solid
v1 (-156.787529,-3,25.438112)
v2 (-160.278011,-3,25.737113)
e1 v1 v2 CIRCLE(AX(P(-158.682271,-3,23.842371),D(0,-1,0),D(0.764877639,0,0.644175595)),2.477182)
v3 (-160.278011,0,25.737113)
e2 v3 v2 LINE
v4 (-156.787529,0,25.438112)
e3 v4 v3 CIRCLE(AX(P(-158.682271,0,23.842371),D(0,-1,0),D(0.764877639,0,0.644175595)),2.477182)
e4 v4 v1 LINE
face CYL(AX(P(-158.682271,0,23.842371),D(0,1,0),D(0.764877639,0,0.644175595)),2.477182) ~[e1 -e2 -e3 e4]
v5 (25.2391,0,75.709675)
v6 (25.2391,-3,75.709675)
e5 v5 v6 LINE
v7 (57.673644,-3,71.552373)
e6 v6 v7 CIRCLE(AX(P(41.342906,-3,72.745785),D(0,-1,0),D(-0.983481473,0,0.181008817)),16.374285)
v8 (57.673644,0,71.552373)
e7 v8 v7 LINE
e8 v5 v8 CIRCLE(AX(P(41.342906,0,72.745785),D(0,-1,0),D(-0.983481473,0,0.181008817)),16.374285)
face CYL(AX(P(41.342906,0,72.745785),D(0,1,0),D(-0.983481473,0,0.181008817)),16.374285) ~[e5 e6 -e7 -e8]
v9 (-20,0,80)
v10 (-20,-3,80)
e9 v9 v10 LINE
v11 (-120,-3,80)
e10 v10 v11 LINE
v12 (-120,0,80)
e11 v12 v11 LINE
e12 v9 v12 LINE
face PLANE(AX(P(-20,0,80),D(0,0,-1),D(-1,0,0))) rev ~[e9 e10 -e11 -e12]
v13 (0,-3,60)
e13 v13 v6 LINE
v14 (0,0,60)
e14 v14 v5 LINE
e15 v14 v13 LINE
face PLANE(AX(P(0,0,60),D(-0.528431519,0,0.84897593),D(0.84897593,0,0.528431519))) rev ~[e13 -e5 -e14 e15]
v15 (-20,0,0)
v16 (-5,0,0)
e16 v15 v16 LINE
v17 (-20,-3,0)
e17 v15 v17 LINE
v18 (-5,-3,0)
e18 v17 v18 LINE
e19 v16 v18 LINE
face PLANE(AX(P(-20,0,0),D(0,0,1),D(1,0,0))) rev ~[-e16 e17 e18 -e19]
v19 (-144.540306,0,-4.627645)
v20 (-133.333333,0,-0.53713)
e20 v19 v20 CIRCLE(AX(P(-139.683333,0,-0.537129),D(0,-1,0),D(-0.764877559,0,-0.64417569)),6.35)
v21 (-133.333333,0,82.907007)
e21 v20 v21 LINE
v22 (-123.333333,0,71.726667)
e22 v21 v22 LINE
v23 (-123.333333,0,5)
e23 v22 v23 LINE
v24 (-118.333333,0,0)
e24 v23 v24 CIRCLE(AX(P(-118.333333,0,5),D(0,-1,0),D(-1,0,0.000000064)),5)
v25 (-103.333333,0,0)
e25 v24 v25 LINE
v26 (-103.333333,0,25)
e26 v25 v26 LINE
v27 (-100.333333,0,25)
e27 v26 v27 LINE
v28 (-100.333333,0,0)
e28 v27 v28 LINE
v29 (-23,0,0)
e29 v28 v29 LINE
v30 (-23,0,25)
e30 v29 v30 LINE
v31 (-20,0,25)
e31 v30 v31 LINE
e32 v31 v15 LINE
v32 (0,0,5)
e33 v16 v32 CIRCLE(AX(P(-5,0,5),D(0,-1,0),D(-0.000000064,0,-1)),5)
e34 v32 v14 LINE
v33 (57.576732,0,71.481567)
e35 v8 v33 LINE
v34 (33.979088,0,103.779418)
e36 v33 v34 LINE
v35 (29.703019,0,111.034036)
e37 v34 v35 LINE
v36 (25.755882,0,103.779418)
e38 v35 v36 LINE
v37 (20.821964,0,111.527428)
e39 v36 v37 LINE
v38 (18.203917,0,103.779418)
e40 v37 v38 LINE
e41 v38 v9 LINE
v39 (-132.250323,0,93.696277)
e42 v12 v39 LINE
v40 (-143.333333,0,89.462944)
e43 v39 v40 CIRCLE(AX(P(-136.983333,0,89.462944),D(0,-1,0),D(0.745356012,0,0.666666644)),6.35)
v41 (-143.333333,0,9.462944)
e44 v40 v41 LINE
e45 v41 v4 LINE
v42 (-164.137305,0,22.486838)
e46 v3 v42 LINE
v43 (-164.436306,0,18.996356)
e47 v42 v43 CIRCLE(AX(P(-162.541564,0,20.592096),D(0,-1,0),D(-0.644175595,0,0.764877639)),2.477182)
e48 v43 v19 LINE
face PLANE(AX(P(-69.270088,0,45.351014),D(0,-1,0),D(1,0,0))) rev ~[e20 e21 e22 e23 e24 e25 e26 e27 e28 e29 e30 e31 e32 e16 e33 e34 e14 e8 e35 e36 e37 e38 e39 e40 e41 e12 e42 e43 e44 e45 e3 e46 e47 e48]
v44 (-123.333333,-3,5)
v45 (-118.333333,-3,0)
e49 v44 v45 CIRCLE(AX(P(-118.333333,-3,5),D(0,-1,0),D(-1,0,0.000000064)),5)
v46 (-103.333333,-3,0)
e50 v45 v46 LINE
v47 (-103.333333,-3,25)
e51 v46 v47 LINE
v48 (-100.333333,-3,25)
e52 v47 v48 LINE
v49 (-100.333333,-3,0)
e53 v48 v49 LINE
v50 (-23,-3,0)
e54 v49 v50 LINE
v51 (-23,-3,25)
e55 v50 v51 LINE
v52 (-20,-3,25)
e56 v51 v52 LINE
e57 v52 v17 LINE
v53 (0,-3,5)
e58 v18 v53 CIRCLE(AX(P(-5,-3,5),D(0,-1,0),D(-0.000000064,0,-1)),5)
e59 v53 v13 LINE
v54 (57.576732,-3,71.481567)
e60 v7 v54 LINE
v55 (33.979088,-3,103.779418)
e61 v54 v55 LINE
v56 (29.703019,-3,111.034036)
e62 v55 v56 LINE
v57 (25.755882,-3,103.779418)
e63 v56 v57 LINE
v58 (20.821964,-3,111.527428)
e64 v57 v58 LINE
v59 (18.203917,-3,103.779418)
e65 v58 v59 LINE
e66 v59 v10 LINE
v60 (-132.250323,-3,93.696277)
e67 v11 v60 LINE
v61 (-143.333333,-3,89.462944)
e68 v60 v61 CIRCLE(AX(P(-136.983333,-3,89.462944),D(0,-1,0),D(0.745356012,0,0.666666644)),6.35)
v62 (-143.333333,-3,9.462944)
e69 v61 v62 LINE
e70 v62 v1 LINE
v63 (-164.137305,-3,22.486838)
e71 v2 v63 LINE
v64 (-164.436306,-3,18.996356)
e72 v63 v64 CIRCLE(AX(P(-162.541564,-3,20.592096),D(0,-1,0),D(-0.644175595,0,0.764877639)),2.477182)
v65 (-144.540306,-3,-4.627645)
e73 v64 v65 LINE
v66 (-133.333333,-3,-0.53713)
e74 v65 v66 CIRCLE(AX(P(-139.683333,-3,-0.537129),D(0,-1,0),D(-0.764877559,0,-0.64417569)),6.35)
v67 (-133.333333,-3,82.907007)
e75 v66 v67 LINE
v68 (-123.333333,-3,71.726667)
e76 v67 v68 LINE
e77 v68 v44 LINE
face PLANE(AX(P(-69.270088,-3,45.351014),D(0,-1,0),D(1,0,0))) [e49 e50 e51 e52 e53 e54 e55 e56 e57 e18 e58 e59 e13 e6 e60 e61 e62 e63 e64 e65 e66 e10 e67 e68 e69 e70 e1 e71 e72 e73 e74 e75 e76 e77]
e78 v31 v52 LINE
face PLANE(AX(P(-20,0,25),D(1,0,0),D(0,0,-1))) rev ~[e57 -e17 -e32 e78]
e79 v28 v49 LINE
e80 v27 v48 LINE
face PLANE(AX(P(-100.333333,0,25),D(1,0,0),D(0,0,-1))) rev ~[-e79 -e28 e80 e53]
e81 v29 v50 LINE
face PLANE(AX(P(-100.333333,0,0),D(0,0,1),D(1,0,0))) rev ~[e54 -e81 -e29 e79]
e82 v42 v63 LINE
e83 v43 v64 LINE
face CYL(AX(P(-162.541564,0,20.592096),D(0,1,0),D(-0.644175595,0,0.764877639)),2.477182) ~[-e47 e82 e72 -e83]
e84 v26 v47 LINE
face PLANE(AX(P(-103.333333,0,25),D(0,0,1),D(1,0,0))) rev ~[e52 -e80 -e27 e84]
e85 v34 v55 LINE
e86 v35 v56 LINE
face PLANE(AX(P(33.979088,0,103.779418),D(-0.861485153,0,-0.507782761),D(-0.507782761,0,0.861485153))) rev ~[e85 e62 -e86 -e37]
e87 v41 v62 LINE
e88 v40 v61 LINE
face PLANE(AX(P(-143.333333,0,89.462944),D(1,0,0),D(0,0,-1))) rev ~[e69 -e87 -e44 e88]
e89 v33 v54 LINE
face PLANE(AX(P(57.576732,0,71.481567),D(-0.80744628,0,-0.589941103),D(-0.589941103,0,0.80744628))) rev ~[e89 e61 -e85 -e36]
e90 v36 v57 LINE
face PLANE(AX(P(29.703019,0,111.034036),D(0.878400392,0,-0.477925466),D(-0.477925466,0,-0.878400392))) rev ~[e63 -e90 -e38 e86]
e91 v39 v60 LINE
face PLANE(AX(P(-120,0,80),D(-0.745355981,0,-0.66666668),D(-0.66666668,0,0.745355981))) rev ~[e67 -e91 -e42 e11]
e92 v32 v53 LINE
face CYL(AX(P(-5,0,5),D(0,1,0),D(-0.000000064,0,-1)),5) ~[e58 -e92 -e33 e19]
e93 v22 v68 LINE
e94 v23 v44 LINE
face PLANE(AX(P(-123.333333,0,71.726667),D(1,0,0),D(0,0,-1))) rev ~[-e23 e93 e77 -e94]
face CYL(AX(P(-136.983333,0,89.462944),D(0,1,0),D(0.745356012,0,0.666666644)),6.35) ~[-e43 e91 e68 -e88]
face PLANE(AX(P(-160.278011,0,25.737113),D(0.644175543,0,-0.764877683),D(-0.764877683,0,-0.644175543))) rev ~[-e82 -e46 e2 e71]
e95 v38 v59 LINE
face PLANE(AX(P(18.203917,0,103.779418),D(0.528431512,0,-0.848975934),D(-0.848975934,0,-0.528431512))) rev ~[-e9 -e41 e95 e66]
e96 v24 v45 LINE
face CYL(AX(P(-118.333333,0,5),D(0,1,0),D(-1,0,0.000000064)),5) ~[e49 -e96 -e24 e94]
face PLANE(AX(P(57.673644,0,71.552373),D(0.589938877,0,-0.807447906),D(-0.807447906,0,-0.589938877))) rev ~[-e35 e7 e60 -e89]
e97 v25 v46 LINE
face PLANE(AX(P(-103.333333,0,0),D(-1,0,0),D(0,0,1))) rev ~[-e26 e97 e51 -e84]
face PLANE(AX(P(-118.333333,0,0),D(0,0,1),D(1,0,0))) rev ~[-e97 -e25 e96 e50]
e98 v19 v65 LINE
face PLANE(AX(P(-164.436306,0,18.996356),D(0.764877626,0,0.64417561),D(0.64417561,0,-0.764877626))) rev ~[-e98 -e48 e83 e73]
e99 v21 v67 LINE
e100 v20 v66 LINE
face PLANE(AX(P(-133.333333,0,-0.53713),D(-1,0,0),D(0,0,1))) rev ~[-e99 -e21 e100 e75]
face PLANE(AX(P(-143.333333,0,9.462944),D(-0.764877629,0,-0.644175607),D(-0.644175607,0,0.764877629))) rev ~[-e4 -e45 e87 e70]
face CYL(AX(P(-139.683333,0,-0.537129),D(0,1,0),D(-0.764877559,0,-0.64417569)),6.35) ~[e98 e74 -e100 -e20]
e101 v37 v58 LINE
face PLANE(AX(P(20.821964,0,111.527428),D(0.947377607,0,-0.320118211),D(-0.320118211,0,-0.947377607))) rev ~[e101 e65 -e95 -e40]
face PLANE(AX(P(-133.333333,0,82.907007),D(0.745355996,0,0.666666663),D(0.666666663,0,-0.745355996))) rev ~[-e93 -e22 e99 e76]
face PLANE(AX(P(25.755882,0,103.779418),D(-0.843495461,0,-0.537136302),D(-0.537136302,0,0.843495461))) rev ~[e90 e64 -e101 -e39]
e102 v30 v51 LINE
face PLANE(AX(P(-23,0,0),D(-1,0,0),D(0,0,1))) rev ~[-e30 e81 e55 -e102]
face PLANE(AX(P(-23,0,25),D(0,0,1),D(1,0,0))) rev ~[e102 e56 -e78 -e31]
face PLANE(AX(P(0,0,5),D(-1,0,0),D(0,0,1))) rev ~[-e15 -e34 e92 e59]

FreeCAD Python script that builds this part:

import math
import FreeCAD as App
import Part
import Sketcher
from FreeCAD import Vector
Q = App.Units.Quantity

doc = App.newDocument("Part")
params = doc.addObject("Spreadsheet::Sheet", "Params")
for row, (alias, value) in enumerate([
    ("sketch1_radius", "5 mm"),
    ("sketch1_width", "15 mm"),
    ("sketch1_width2", "100 mm"),
    ("sketch1_width3", "3 mm"),
    ("sketch1_height", "55 mm"),
    ("pad1_length", "3 mm"),
], start=1):
    params.set(f"A{row}", alias)
    params.set(f"B{row}", "=" + value)
    params.setAlias(f"B{row}", alias)

body = doc.addObject("PartDesign::Body", "Body")

# Sketch on XZ plane
sketch1 = doc.addObject("Sketcher::SketchObject", "Sketch")
body.addObject(sketch1)
sketch1.AttachmentSupport = (doc.XZ_Plane, [""])
sketch1.MapMode = "FlatFace"
sketch1.addGeometry([
    Part.LineSegment(Vector(-20, 0, 0), Vector(-5, 0, 0)),  # 0
    Part.ArcOfCircle(Part.Circle(Vector(-5, 5, 0), Vector(0, 0, 1), 5), math.radians(-90.000004), math.radians(0.000004)),  # 1
    Part.LineSegment(Vector(0, 5, 0), Vector(0, 60, 0)),  # 2
    Part.LineSegment(Vector(0, 60, 0), Vector(25.2391, 75.709675, 0)),  # 3
    Part.ArcOfCircle(Part.Circle(Vector(41.342906, 72.745785, 0), Vector(0, 0, 1), 16.374285), math.radians(169.571474), math.radians(355.820389)),  # 4
    Part.LineSegment(Vector(57.673644, 71.552373, 0), Vector(57.576732, 71.481567, 0)),  # 5
    Part.LineSegment(Vector(57.576732, 71.481567, 0), Vector(33.979088, 103.779418, 0)),  # 6
    Part.LineSegment(Vector(33.979088, 103.779418, 0), Vector(29.703019, 111.034036, 0)),  # 7
    Part.LineSegment(Vector(29.703019, 111.034036, 0), Vector(25.755882, 103.779418, 0)),  # 8
    Part.LineSegment(Vector(25.755882, 103.779418, 0), Vector(20.821964, 111.527428, 0)),  # 9
    Part.LineSegment(Vector(20.821964, 111.527428, 0), Vector(18.203917, 103.779418, 0)),  # 10
    Part.LineSegment(Vector(18.203917, 103.779418, 0), Vector(-20, 80, 0)),  # 11
    Part.LineSegment(Vector(-20, 80, 0), Vector(-120, 80, 0)),  # 12
    Part.LineSegment(Vector(-120, 80, 0), Vector(-132.250323, 93.696277, 0)),  # 13
    Part.ArcOfCircle(Part.Circle(Vector(-136.983333, 89.462944, 0), Vector(0, 0, 1), 6.35), math.radians(41.810313), math.radians(180.000001)),  # 14
    Part.LineSegment(Vector(-143.333333, 89.462944, 0), Vector(-143.333333, 9.462944, 0)),  # 15
    Part.LineSegment(Vector(-143.333333, 9.462944, 0), Vector(-156.787529, 25.438112, 0)),  # 16
    Part.ArcOfCircle(Part.Circle(Vector(-158.682271, 23.842371, 0), Vector(0, 0, 1), 2.477182), math.radians(40.103893), math.radians(130.103892)),  # 17
    Part.LineSegment(Vector(-160.278011, 25.737113, 0), Vector(-164.137305, 22.486838, 0)),  # 18
    Part.ArcOfCircle(Part.Circle(Vector(-162.541564, 20.592096, 0), Vector(0, 0, 1), 2.477182), math.radians(130.103893), math.radians(220.103892)),  # 19
    Part.LineSegment(Vector(-164.436306, 18.996356, 0), Vector(-144.540306, -4.627645, 0)),  # 20
    Part.ArcOfCircle(Part.Circle(Vector(-139.683333, -0.537129, 0), Vector(0, 0, 1), 6.35), math.radians(-139.8961), math.radians(-0.000007)),  # 21
    Part.LineSegment(Vector(-133.333333, -0.53713, 0), Vector(-133.333333, 82.907007, 0)),  # 22
    Part.LineSegment(Vector(-133.333333, 82.907007, 0), Vector(-123.333333, 71.726667, 0)),  # 23
    Part.LineSegment(Vector(-123.333333, 71.726667, 0), Vector(-123.333333, 5, 0)),  # 24
    Part.ArcOfCircle(Part.Circle(Vector(-118.333333, 5, 0), Vector(0, 0, 1), 5), math.radians(179.999996), math.radians(270.000004)),  # 25
    Part.LineSegment(Vector(-118.333333, 0, 0), Vector(-103.333333, 0, 0)),  # 26
    Part.LineSegment(Vector(-103.333333, 0, 0), Vector(-103.333333, 25, 0)),  # 27
    Part.LineSegment(Vector(-103.333333, 25, 0), Vector(-100.333333, 25, 0)),  # 28
    Part.LineSegment(Vector(-100.333333, 25, 0), Vector(-100.333333, 0, 0)),  # 29
    Part.LineSegment(Vector(-100.333333, 0, 0), Vector(-23, 0, 0)),  # 30
    Part.LineSegment(Vector(-23, 0, 0), Vector(-23, 25, 0)),  # 31
    Part.LineSegment(Vector(-23, 25, 0), Vector(-20, 25, 0)),  # 32
    Part.LineSegment(Vector(-20, 25, 0), Vector(-20, 0, 0)),  # 33
], False)
sketch1.addConstraint([
    Sketcher.Constraint("Tangent", 0, 2, 1, 1),
    Sketcher.Constraint("Tangent", 1, 2, 2, 1),
    Sketcher.Constraint("Coincident", 2, 2, 3, 1),
    Sketcher.Constraint("Coincident", 3, 2, 4, 1),
    Sketcher.Constraint("Coincident", 4, 2, 5, 1),
    Sketcher.Constraint("Coincident", 5, 2, 6, 1),
    Sketcher.Constraint("Coincident", 6, 2, 7, 1),
    Sketcher.Constraint("Coincident", 7, 2, 8, 1),
    Sketcher.Constraint("Coincident", 8, 2, 9, 1),
    Sketcher.Constraint("Coincident", 9, 2, 10, 1),
    Sketcher.Constraint("Coincident", 10, 2, 11, 1),
    Sketcher.Constraint("Coincident", 11, 2, 12, 1),
    Sketcher.Constraint("Coincident", 12, 2, 13, 1),
    Sketcher.Constraint("Tangent", 13, 2, 14, 1),
    Sketcher.Constraint("Tangent", 14, 2, 15, 1),
    Sketcher.Constraint("Coincident", 15, 2, 16, 1),
    Sketcher.Constraint("Tangent", 16, 2, 17, 1),
    Sketcher.Constraint("Tangent", 17, 2, 18, 1),
    Sketcher.Constraint("Tangent", 18, 2, 19, 1),
    Sketcher.Constraint("Tangent", 19, 2, 20, 1),
    Sketcher.Constraint("Tangent", 20, 2, 21, 1),
    Sketcher.Constraint("Tangent", 21, 2, 22, 1),
    Sketcher.Constraint("Coincident", 22, 2, 23, 1),
    Sketcher.Constraint("Coincident", 23, 2, 24, 1),
    Sketcher.Constraint("Tangent", 24, 2, 25, 1),
    Sketcher.Constraint("Tangent", 25, 2, 26, 1),
    Sketcher.Constraint("Coincident", 26, 2, 27, 1),
    Sketcher.Constraint("Coincident", 27, 2, 28, 1),
    Sketcher.Constraint("Coincident", 28, 2, 29, 1),
    Sketcher.Constraint("Coincident", 29, 2, 30, 1),
    Sketcher.Constraint("Coincident", 30, 2, 31, 1),
    Sketcher.Constraint("Coincident", 31, 2, 32, 1),
    Sketcher.Constraint("Coincident", 32, 2, 33, 1),
    Sketcher.Constraint("Coincident", 33, 2, 0, 1),
    Sketcher.Constraint("Horizontal", 0),
    Sketcher.Constraint("Vertical", 2),
    Sketcher.Constraint("Horizontal", 12),
    Sketcher.Constraint("Vertical", 15),
    Sketcher.Constraint("Vertical", 22),
    Sketcher.Constraint("Vertical", 24),
    Sketcher.Constraint("Horizontal", 26),
    Sketcher.Constraint("Vertical", 27),
    Sketcher.Constraint("Horizontal", 28),
    Sketcher.Constraint("Vertical", 29),
    Sketcher.Constraint("Horizontal", 30),
    Sketcher.Constraint("Vertical", 31),
    Sketcher.Constraint("Horizontal", 32),
    Sketcher.Constraint("Vertical", 33),
    Sketcher.Constraint("Equal", 17, 19),
    Sketcher.Constraint("Equal", 14, 21),
    Sketcher.Constraint("Equal", 1, 25),
    Sketcher.Constraint("PointOnObject", 0, 2, -1),
    Sketcher.Constraint("PointOnObject", 1, 2, -2),
    Sketcher.Constraint("PointOnObject", 25, 2, -1),
    Sketcher.Constraint("PointOnObject", 29, 2, -1),
    Sketcher.Constraint("Parallel", 3, 11),
    Sketcher.Constraint("Perpendicular", 16, 18),
    Sketcher.Constraint("Perpendicular", 18, 20),
    Sketcher.Constraint("Parallel", 13, 23),
    Sketcher.Constraint("Horizontal", 6, 2, 8, 2),
    Sketcher.Constraint("Horizontal", 8, 2, 10, 2),
    Sketcher.Constraint("Horizontal", 28, 2, 31, 2),
    Sketcher.Constraint("Vertical", 11, 2, 32, 2),
    Sketcher.Constraint("Equal", 0, 26),
    Sketcher.Constraint("Equal", 28, 32),
    Sketcher.Constraint("Radius", 1, Q("5 mm")),
    Sketcher.Constraint("DistanceX", 0, 1, 0, 2, Q("15 mm")),
    Sketcher.Constraint("DistanceX", 12, 2, 12, 1, Q("100 mm")),
    Sketcher.Constraint("DistanceX", 28, 1, 28, 2, Q("3 mm")),
    Sketcher.Constraint("DistanceY", 2, 1, 2, 2, Q("55 mm")),
    Sketcher.Constraint("DistanceY", 15, 2, 15, 1, Q("80 mm")),
    Sketcher.Constraint("DistanceY", 27, 1, 27, 2, Q("25 mm")),
    Sketcher.Constraint("Radius", 14, Q("6.35 mm")),
    Sketcher.Constraint("Distance", 6, Q("40 mm")),
    Sketcher.Constraint("Distance", 11, Q("45 mm")),
    Sketcher.Constraint("Distance", 23, Q("15 mm")),
    Sketcher.Constraint("DistanceY", -1, 1, 11, 2, Q("80 mm")),
    Sketcher.Constraint("DistanceX", 15, 2, 25, 3, Q("25 mm")),
    Sketcher.Constraint("DistanceX", 15, 2, 21, 2, Q("10 mm")),
    Sketcher.Constraint("Angle", 8, Q("-118.549998 deg")),
    Sketcher.Constraint("Radius", 4, Q("16.374285 mm")),
    Sketcher.Constraint("Radius", 17, Q("2.477182 mm")),
    Sketcher.Constraint("DistanceY", 16, 2, 17, 2, Q("0.299001 mm")),
    Sketcher.Constraint("DistanceX", 19, 2, 20, 2, Q("19.896 mm")),
    Sketcher.Constraint("DistanceX", -1, 1, 3, 2, Q("25.2391 mm")),
    Sketcher.Constraint("DistanceY", 21, 3, 17, 3, Q("24.379501 mm")),
    Sketcher.Constraint("DistanceY", 4, 2, 3, 2, Q("4.157302 mm")),
    Sketcher.Constraint("Distance", 7, Q("8.42106 mm")),
    Sketcher.Constraint("DistanceX", 30, 1, 30, 2, Q("77.333333 mm")),
    Sketcher.Constraint("DistanceY", 22, 1, 22, 2, Q("83.444137 mm")),
    Sketcher.Constraint("DistanceY", -1, 1, 6, 2, Q("103.779418 mm")),
    Sketcher.Constraint("DistanceX", -1, 1, 7, 2, Q("29.703019 mm")),
    Sketcher.Constraint("DistanceX", -1, 1, 8, 2, Q("25.755882 mm")),
    Sketcher.Constraint("DistanceY", -1, 1, 9, 2, Q("111.527428 mm")),
    Sketcher.Constraint("DistanceX", 14, 3, 4, 3, Q("178.32624 mm")),
    Sketcher.Constraint("DistanceX", 5, 2, 4, 2, Q("0.096912 mm")),
    Sketcher.Constraint("Distance", 9, Q("9.185598 mm")),
])
sketch1.setExpression("Constraints[65]", "Params.sketch1_radius")
sketch1.setExpression("Constraints[66]", "Params.sketch1_width")
sketch1.setExpression("Constraints[67]", "Params.sketch1_width2")
sketch1.setExpression("Constraints[68]", "Params.sketch1_width3")
sketch1.setExpression("Constraints[69]", "Params.sketch1_height")
pad1 = doc.addObject("PartDesign::Pad", "Pad")
body.addObject(pad1)
pad1.Profile = sketch1
pad1.setExpression("Length", "Params.pad1_length")

doc.recompute()
